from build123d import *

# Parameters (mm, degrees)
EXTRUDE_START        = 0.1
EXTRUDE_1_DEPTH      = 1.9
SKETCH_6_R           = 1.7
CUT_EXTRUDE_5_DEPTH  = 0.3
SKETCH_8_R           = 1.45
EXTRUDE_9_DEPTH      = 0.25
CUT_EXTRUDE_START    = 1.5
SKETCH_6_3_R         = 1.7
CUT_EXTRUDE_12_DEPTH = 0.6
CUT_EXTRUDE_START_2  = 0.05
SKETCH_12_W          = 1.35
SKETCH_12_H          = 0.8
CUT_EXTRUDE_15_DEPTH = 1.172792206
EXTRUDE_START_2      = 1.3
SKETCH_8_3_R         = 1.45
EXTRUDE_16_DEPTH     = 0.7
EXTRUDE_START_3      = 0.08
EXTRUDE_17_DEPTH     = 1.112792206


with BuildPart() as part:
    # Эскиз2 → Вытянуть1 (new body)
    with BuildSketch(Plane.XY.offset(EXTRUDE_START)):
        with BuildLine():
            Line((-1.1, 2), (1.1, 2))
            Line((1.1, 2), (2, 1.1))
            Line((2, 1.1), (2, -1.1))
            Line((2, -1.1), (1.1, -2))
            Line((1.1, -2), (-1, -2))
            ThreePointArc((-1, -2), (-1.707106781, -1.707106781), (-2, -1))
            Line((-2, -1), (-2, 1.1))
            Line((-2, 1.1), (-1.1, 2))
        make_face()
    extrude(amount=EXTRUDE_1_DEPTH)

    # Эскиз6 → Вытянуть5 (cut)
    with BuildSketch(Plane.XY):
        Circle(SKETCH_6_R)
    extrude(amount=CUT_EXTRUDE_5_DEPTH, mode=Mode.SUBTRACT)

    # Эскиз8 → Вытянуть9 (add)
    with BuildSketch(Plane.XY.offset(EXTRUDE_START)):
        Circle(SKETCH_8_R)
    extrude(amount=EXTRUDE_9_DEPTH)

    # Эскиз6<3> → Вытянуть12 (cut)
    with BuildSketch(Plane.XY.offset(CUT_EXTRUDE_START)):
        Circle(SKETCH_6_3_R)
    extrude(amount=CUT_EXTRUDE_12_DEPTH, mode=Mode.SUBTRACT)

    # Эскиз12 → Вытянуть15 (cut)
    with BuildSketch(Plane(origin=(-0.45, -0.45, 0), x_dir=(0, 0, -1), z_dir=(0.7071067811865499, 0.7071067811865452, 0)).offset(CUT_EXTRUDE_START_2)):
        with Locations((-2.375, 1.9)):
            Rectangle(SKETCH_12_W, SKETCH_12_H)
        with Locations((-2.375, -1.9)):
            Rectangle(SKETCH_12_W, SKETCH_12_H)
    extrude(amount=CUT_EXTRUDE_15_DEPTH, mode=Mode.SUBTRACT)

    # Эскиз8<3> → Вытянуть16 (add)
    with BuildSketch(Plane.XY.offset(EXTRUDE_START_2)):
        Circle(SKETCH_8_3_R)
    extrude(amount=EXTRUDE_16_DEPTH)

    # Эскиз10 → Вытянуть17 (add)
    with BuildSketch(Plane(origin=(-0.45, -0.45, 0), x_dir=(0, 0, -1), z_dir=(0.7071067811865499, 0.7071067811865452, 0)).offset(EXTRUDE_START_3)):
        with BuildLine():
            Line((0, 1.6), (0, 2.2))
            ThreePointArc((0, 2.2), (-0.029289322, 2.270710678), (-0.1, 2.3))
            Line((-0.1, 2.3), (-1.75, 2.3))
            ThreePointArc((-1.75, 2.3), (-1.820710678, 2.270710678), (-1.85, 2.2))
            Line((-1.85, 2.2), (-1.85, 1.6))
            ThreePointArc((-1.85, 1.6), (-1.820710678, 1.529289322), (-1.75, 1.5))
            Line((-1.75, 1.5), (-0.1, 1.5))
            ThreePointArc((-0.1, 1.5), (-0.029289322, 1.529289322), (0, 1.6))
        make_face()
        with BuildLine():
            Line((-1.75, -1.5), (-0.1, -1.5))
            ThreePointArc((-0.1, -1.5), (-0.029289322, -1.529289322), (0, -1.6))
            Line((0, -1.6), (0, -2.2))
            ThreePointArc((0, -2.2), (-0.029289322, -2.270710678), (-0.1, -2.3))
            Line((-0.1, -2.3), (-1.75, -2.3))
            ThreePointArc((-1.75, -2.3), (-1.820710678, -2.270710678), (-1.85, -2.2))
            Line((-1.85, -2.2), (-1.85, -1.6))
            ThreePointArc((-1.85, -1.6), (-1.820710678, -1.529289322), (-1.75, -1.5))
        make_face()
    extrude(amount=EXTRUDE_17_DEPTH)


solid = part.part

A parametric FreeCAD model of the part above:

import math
import FreeCAD as App
import Part
import Sketcher

V = App.Vector

doc = App.newDocument("Part")
body = doc.addObject("PartDesign::Body", "Body")

# Sketch on XY plane
sketch1 = doc.addObject("Sketcher::SketchObject", "Sketch")
body.addObject(sketch1)
sketch1.AttachmentSupport = (doc.XY_Plane, [""])
sketch1.MapMode = "FlatFace"
sketch1.AttachmentOffset = App.Placement(V(0, 0, 0.1), App.Rotation())
sketch1.addGeometry(Part.LineSegment(V(1.1, 2, 0), V(-1.1, 2, 0)), False)
sketch1.addGeometry(Part.LineSegment(V(-1.1, 2, 0), V(-2, 1.1, 0)), False)
sketch1.addGeometry(Part.LineSegment(V(-2, 1.1, 0), V(-2, -1, 0)), False)
sketch1.addGeometry(Part.ArcOfCircle(Part.Circle(V(-1, -1, 0), V(0, 0, 1), 1), math.radians(-180), math.radians(-90)), False)
sketch1.addGeometry(Part.LineSegment(V(-1, -2, 0), V(1.1, -2, 0)), False)
sketch1.addGeometry(Part.LineSegment(V(1.1, -2, 0), V(2, -1.1, 0)), False)
sketch1.addGeometry(Part.LineSegment(V(2, -1.1, 0), V(2, 1.1, 0)), False)
sketch1.addGeometry(Part.LineSegment(V(2, 1.1, 0), V(1.1, 2, 0)), False)
sketch1.addConstraint(Sketcher.Constraint("Coincident", 0, 2, 1, 1))
sketch1.addConstraint(Sketcher.Constraint("Coincident", 1, 2, 2, 1))
sketch1.addConstraint(Sketcher.Constraint("Tangent", 2, 2, 3, 1))
sketch1.addConstraint(Sketcher.Constraint("Tangent", 3, 2, 4, 1))
sketch1.addConstraint(Sketcher.Constraint("Coincident", 4, 2, 5, 1))
sketch1.addConstraint(Sketcher.Constraint("Coincident", 5, 2, 6, 1))
sketch1.addConstraint(Sketcher.Constraint("Coincident", 6, 2, 7, 1))
sketch1.addConstraint(Sketcher.Constraint("Coincident", 7, 2, 0, 1))
sketch1.addConstraint(Sketcher.Constraint("Horizontal", 0))
sketch1.addConstraint(Sketcher.Constraint("Vertical", 2))
sketch1.addConstraint(Sketcher.Constraint("Horizontal", 4))
sketch1.addConstraint(Sketcher.Constraint("Vertical", 6))
sketch1.addConstraint(Sketcher.Constraint("Symmetric", 0, 2, 4, 2, -1, 1))
sketch1.addConstraint(Sketcher.Constraint("Symmetric", 1, 2, 5, 2, -1, 1))
sketch1.addConstraint(Sketcher.Constraint("Perpendicular", 5, 7))
sketch1.addConstraint(Sketcher.Constraint("Horizontal", 1, 2, 6, 2))
sketch1.addConstraint(Sketcher.Constraint("Vertical", 4, 2, 7, 2))
sketch1.addConstraint(Sketcher.Constraint("Equal", 4, 2))
sketch1.addConstraint(Sketcher.Constraint("Radius", 3, 1.0))
sketch1.addConstraint(Sketcher.Constraint("DistanceX", 0, 2, 0, 1, 2.2))
sketch1.addConstraint(Sketcher.Constraint("DistanceX", 4, 1, 4, 2, 2.1))
pad1 = doc.addObject("PartDesign::Pad", "Pad")
body.addObject(pad1)
pad1.Profile = sketch1
pad1.Length = 1.9

# Sketch on XY plane
sketch2 = doc.addObject("Sketcher::SketchObject", "Sketch001")
body.addObject(sketch2)
sketch2.AttachmentSupport = (doc.XY_Plane, [""])
sketch2.MapMode = "FlatFace"
sketch2.addGeometry(Part.Circle(V(0, 0, 0), V(0, 0, 1), 1.7), False)
sketch2.addConstraint(Sketcher.Constraint("Coincident", 0, 3, -1, 1))
sketch2.addConstraint(Sketcher.Constraint("Diameter", 0, 3.4))
pocket1 = doc.addObject("PartDesign::Pocket", "Pocket")
body.addObject(pocket1)
pocket1.Profile = sketch2
pocket1.Length = 0.3
pocket1.Reversed = True

# Sketch on XY plane
sketch3 = doc.addObject("Sketcher::SketchObject", "Sketch002")
body.addObject(sketch3)
sketch3.AttachmentSupport = (doc.XY_Plane, [""])
sketch3.MapMode = "FlatFace"
sketch3.AttachmentOffset = App.Placement(V(0, 0, 0.1), App.Rotation())
sketch3.addGeometry(Part.Circle(V(0, 0, 0), V(0, 0, 1), 1.4), False)
sketch3.addConstraint(Sketcher.Constraint("Coincident", 0, 3, -1, 1))
sketch3.addConstraint(Sketcher.Constraint("Diameter", 0, 2.9))
pad2 = doc.addObject("PartDesign::Pad", "Pad001")
body.addObject(pad2)
pad2.Profile = sketch3
pad2.Length = 0.25

# Sketch on XY plane
sketch4 = doc.addObject("Sketcher::SketchObject", "Sketch003")
body.addObject(sketch4)
sketch4.AttachmentSupport = (doc.XY_Plane, [""])
sketch4.MapMode = "FlatFace"
sketch4.AttachmentOffset = App.Placement(V(0, 0, 1.5), App.Rotation())
sketch4.addGeometry(Part.Circle(V(0, 0, 0), V(0, 0, 1), 1.7), False)
sketch4.addConstraint(Sketcher.Constraint("Coincident", 0, 3, -1, 1))
sketch4.addConstraint(Sketcher.Constraint("Diameter", 0, 3.4))
pocket2 = doc.addObject("PartDesign::Pocket", "Pocket001")
body.addObject(pocket2)
pocket2.Profile = sketch4
pocket2.Length = 0.6
pocket2.Reversed = True

# Sketch on an angled plane
sketch5 = doc.addObject("Sketcher::SketchObject", "Sketch004")
body.addObject(sketch5)
sketch5.Placement = App.Placement(V(-0.414645, -0.414645, 0), App.Rotation(V(0, 0, -1), V(-0.707106781, 0.707106781, 0), V(0.707106781, 0.707106781, 0), "ZXY"))
sketch5.addGeometry(Part.LineSegment(V(-3, 2.3, 0), V(-3, 1.5, 0)), False)
sketch5.addGeometry(Part.LineSegment(V(-3, 1.5, 0), V(-1.7, 1.5, 0)), False)
sketch5.addGeometry(Part.LineSegment(V(-1.7, 1.5, 0), V(-1.7, 2.3, 0)), False)
sketch5.addGeometry(Part.LineSegment(V(-1.7, 2.3, 0), V(-3, 2.3, 0)), False)
sketch5.addGeometry(Part.LineSegment(V(-3, -1.5, 0), V(-3, -2.3, 0)), False)
sketch5.addGeometry(Part.LineSegment(V(-3, -2.3, 0), V(-1.7, -2.3, 0)), False)
sketch5.addGeometry(Part.LineSegment(V(-1.7, -2.3, 0), V(-1.7, -1.5, 0)), False)
sketch5.addGeometry(Part.LineSegment(V(-1.7, -1.5, 0), V(-3, -1.5, 0)), False)
sketch5.addConstraint(Sketcher.Constraint("Coincident", 0, 2, 1, 1))
sketch5.addConstraint(Sketcher.Constraint("Coincident", 1, 2, 2, 1))
sketch5.addConstraint(Sketcher.Constraint("Coincident", 2, 2, 3, 1))
sketch5.addConstraint(Sketcher.Constraint("Coincident", 3, 2, 0, 1))
sketch5.addConstraint(Sketcher.Constraint("Coincident", 4, 2, 5, 1))
sketch5.addConstraint(Sketcher.Constraint("Coincident", 5, 2, 6, 1))
sketch5.addConstraint(Sketcher.Constraint("Coincident", 6, 2, 7, 1))
sketch5.addConstraint(Sketcher.Constraint("Coincident", 7, 2, 4, 1))
sketch5.addConstraint(Sketcher.Constraint("Vertical", 0))
sketch5.addConstraint(Sketcher.Constraint("Horizontal", 1))
sketch5.addConstraint(Sketcher.Constraint("Vertical", 2))
sketch5.addConstraint(Sketcher.Constraint("Horizontal", 3))
sketch5.addConstraint(Sketcher.Constraint("Vertical", 4))
sketch5.addConstraint(Sketcher.Constraint("Horizontal", 5))
sketch5.addConstraint(Sketcher.Constraint("Vertical", 6))
sketch5.addConstraint(Sketcher.Constraint("Horizontal", 7))
sketch5.addConstraint(Sketcher.Constraint("Symmetric", 3, 2, 4, 2, -1))
sketch5.addConstraint(Sketcher.Constraint("Symmetric", 1, 2, 6, 2, -1))
sketch5.addConstraint(Sketcher.Constraint("DistanceY", 0, 2, 0, 1, 0.8))
sketch5.addConstraint(Sketcher.Constraint("DistanceY", 6, 2, 1, 2, 3.0))
sketch5.addConstraint(Sketcher.Constraint("DistanceX", 1, 1, 1, 2, 1.35))
sketch5.addConstraint(Sketcher.Constraint("DistanceX", 1, 2, -1, 1, 1.7))
pocket3 = doc.addObject("PartDesign::Pocket", "Pocket002")
body.addObject(pocket3)
pocket3.Profile = sketch5
pocket3.Length = 1.172792
pocket3.Reversed = True

# Sketch on XY plane
sketch6 = doc.addObject("Sketcher::SketchObject", "Sketch005")
body.addObject(sketch6)
sketch6.AttachmentSupport = (doc.XY_Plane, [""])
sketch6.MapMode = "FlatFace"
sketch6.AttachmentOffset = App.Placement(V(0, 0, 1.3), App.Rotation())
sketch6.addGeometry(Part.Circle(V(0, 0, 0), V(0, 0, 1), 1.4), False)
sketch6.addConstraint(Sketcher.Constraint("Coincident", 0, 3, -1, 1))
sketch6.addConstraint(Sketcher.Constraint("Diameter", 0, 2.9))
pad3 = doc.addObject("PartDesign::Pad", "Pad002")
body.addObject(pad3)
pad3.Profile = sketch6
pad3.Length = 0.7

# Sketch on an angled plane
sketch7 = doc.addObject("Sketcher::SketchObject", "Sketch006")
body.addObject(sketch7)
sketch7.Placement = App.Placement(V(-0.393431, -0.393431, 0), App.Rotation(V(0, 0, -1), V(-0.707106781, 0.707106781, 0), V(0.707106781, 0.707106781, 0), "ZXY"))
sketch7.addGeometry(Part.LineSegment(V(0, 1.6, 0), V(0, 2.2, 0)), False)
sketch7.addGeometry(Part.ArcOfCircle(Part.Circle(V(-0.1, 2.2, 0), V(0, 0, 1), 0.1), math.radians(0), math.radians(90)), False)
sketch7.addGeometry(Part.LineSegment(V(-0.1, 2.3, 0), V(-1.75, 2.3, 0)), False)
sketch7.addGeometry(Part.ArcOfCircle(Part.Circle(V(-1.75, 2.2, 0), V(0, 0, 1), 0.1), math.radians(90), math.radians(180)), False)
sketch7.addGeometry(Part.LineSegment(V(-1.85, 2.2, 0), V(-1.85, 1.6, 0)), False)
sketch7.addGeometry(Part.ArcOfCircle(Part.Circle(V(-1.75, 1.6, 0), V(0, 0, 1), 0.1), math.radians(180), math.radians(270)), False)
sketch7.addGeometry(Part.LineSegment(V(-1.75, 1.5, 0), V(-0.1, 1.5, 0)), False)
sketch7.addGeometry(Part.ArcOfCircle(Part.Circle(V(-0.1, 1.6, 0), V(0, 0, 1), 0.1), math.radians(-90), math.radians(0)), False)
sketch7.addGeometry(Part.LineSegment(V(-0.1, -1.5, 0), V(-1.75, -1.5, 0)), False)
sketch7.addGeometry(Part.ArcOfCircle(Part.Circle(V(-1.75, -1.6, 0), V(0, 0, 1), 0.1), math.radians(90), math.radians(180)), False)
sketch7.addGeometry(Part.LineSegment(V(-1.85, -1.6, 0), V(-1.85, -2.2, 0)), False)
sketch7.addGeometry(Part.ArcOfCircle(Part.Circle(V(-1.75, -2.2, 0), V(0, 0, 1), 0.1), math.radians(180), math.radians(270)), False)
sketch7.addGeometry(Part.LineSegment(V(-1.75, -2.3, 0), V(-0.1, -2.3, 0)), False)
sketch7.addGeometry(Part.ArcOfCircle(Part.Circle(V(-0.1, -2.2, 0), V(0, 0, 1), 0.1), math.radians(-90), math.radians(0)), False)
sketch7.addGeometry(Part.LineSegment(V(0, -2.2, 0), V(0, -1.6, 0)), False)
sketch7.addGeometry(Part.ArcOfCircle(Part.Circle(V(-0.1, -1.6, 0), V(0, 0, 1), 0.1), math.radians(0), math.radians(90)), False)
sketch7.addConstraint(Sketcher.Constraint("Tangent", 0, 2, 1, 1))
sketch7.addConstraint(Sketcher.Constraint("Tangent", 1, 2, 2, 1))
sketch7.addConstraint(Sketcher.Constraint("Tangent", 2, 2, 3, 1))
sketch7.addConstraint(Sketcher.Constraint("Tangent", 3, 2, 4, 1))
sketch7.addConstraint(Sketcher.Constraint("Tangent", 4, 2, 5, 1))
sketch7.addConstraint(Sketcher.Constraint("Tangent", 5, 2, 6, 1))
sketch7.addConstraint(Sketcher.Constraint("Tangent", 6, 2, 7, 1))
sketch7.addConstraint(Sketcher.Constraint("Tangent", 7, 2, 0, 1))
sketch7.addConstraint(Sketcher.Constraint("Tangent", 8, 2, 9, 1))
sketch7.addConstraint(Sketcher.Constraint("Tangent", 9, 2, 10, 1))
sketch7.addConstraint(Sketcher.Constraint("Tangent", 10, 2, 11, 1))
sketch7.addConstraint(Sketcher.Constraint("Tangent", 11, 2, 12, 1))
sketch7.addConstraint(Sketcher.Constraint("Tangent", 12, 2, 13, 1))
sketch7.addConstraint(Sketcher.Constraint("Tangent", 13, 2, 14, 1))
sketch7.addConstraint(Sketcher.Constraint("Tangent", 14, 2, 15, 1))
sketch7.addConstraint(Sketcher.Constraint("Tangent", 15, 2, 8, 1))
sketch7.addConstraint(Sketcher.Constraint("Vertical", 0))
sketch7.addConstraint(Sketcher.Constraint("Horizontal", 2))
sketch7.addConstraint(Sketcher.Constraint("Vertical", 4))
sketch7.addConstraint(Sketcher.Constraint("Horizontal", 6))
sketch7.addConstraint(Sketcher.Constraint("Horizontal", 8))
sketch7.addConstraint(Sketcher.Constraint("Vertical", 10))
sketch7.addConstraint(Sketcher.Constraint("Horizontal", 12))
sketch7.addConstraint(Sketcher.Constraint("Vertical", 14))
sketch7.addConstraint(Sketcher.Constraint("Equal", 1, 3))
sketch7.addConstraint(Sketcher.Constraint("Equal", 3, 5))
sketch7.addConstraint(Sketcher.Constraint("Equal", 5, 7))
sketch7.addConstraint(Sketcher.Constraint("Equal", 7, 9))
sketch7.addConstraint(Sketcher.Constraint("Equal", 9, 11))
sketch7.addConstraint(Sketcher.Constraint("Equal", 11, 13))
sketch7.addConstraint(Sketcher.Constraint("Equal", 13, 15))
sketch7.addConstraint(Sketcher.Constraint("Symmetric", 0, 2, 13, 2, -1, 1))
sketch7.addConstraint(Sketcher.Constraint("Symmetric", 5, 3, 9, 3, -1))
sketch7.addConstraint(Sketcher.Constraint("PointOnObject", 0, 2, -2))
sketch7.addConstraint(Sketcher.Constraint("Radius", 1, 0.1))
sketch7.addConstraint(Sketcher.Constraint("DistanceY", 0, 1, 0, 2, 0.6))
sketch7.addConstraint(Sketcher.Constraint("DistanceY", 8, 2, 5, 2, 3.0))
sketch7.addConstraint(Sketcher.Constraint("DistanceX", 2, 2, 2, 1, 1.65))
pad4 = doc.addObject("PartDesign::Pad", "Pad003")
body.addObject(pad4)
pad4.Profile = sketch7
pad4.Length = 1.112792

doc.recompute()
